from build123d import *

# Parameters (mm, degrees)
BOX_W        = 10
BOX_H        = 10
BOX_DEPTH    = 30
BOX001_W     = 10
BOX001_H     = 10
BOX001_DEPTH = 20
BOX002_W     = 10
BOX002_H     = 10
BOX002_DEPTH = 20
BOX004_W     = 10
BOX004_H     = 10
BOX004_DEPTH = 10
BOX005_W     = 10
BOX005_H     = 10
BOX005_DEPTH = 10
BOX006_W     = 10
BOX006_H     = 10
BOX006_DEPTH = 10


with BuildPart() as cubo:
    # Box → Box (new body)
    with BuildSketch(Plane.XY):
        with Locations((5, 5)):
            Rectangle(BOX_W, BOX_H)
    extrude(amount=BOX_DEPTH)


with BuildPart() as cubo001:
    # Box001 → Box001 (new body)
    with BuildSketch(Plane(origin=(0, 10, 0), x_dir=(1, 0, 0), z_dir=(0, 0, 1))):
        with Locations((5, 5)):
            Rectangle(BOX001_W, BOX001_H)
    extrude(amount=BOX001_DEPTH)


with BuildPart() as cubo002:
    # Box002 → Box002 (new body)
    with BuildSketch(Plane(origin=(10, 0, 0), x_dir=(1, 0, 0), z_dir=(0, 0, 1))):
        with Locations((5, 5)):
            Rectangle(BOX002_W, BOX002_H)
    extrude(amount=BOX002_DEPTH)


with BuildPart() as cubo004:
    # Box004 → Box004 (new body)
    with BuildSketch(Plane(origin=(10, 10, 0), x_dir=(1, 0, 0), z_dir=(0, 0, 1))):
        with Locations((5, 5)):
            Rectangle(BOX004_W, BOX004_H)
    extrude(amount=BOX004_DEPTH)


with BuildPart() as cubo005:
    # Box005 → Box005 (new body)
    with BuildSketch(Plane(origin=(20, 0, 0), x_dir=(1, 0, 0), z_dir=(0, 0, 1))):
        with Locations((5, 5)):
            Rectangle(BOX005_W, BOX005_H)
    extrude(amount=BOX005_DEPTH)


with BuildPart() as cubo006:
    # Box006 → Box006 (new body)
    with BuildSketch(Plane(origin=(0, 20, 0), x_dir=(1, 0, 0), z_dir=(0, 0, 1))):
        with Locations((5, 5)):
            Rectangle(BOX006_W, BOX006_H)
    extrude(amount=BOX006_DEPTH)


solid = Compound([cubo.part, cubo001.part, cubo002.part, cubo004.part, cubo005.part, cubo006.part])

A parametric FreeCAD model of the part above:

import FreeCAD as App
import Part
import Sketcher
from FreeCAD import Vector

doc = App.newDocument("Part")
body = doc.addObject("PartDesign::Body", "Body")

sketch1 = body.newObject("Sketcher::SketchObject", "Sketch")
sketch1.AttachmentSupport = (doc.getObject("XY_Plane"), [""])
sketch1.MapMode = "FlatFace"
sketch1.addGeometry([
    Part.LineSegment(Vector(0, 10, 0), Vector(0, 0, 0)),
    Part.LineSegment(Vector(0, 0, 0), Vector(10, 0, 0)),
    Part.LineSegment(Vector(10, 0, 0), Vector(10, 10, 0)),
    Part.LineSegment(Vector(10, 10, 0), Vector(0, 10, 0)),
], False)
sketch1.addConstraint([
    Sketcher.Constraint("Coincident", 0, 2, 1, 1),
    Sketcher.Constraint("Coincident", 1, 2, 2, 1),
    Sketcher.Constraint("Coincident", 2, 2, 3, 1),
    Sketcher.Constraint("Coincident", 3, 2, 0, 1),
    Sketcher.Constraint("Vertical", 0),
    Sketcher.Constraint("Horizontal", 1),
    Sketcher.Constraint("Vertical", 2),
    Sketcher.Constraint("Horizontal", 3),
    Sketcher.Constraint("Coincident", 0, 2, -1, 1),
    Sketcher.Constraint("Equal", 3, 0),
    Sketcher.Constraint("DistanceX", 1, 1, 1, 2, 10.0),
])
pad1 = body.newObject("PartDesign::Pad", "Pad")
pad1.Profile = sketch1
pad1.Length = 30
body2 = doc.addObject("PartDesign::Body", "Body001")

sketch2 = body2.newObject("Sketcher::SketchObject", "Sketch001")
sketch2.AttachmentSupport = (doc.getObject("XY_Plane001"), [""])
sketch2.MapMode = "FlatFace"
sketch2.addGeometry([
    Part.LineSegment(Vector(0, 20, 0), Vector(0, 10, 0)),
    Part.LineSegment(Vector(0, 10, 0), Vector(10, 10, 0)),
    Part.LineSegment(Vector(10, 10, 0), Vector(10, 20, 0)),
    Part.LineSegment(Vector(10, 20, 0), Vector(0, 20, 0)),
], False)
sketch2.addConstraint([
    Sketcher.Constraint("Coincident", 0, 2, 1, 1),
    Sketcher.Constraint("Coincident", 1, 2, 2, 1),
    Sketcher.Constraint("Coincident", 2, 2, 3, 1),
    Sketcher.Constraint("Coincident", 3, 2, 0, 1),
    Sketcher.Constraint("Vertical", 0),
    Sketcher.Constraint("Horizontal", 1),
    Sketcher.Constraint("Vertical", 2),
    Sketcher.Constraint("Horizontal", 3),
    Sketcher.Constraint("PointOnObject", 0, 2, -2),
    Sketcher.Constraint("Equal", 3, 0),
    Sketcher.Constraint("DistanceX", 1, 1, 1, 2, 10.0),
    Sketcher.Constraint("DistanceY", -1, 1, 0, 2, 10.0),
])
pad2 = body2.newObject("PartDesign::Pad", "Pad001")
pad2.Profile = sketch2
pad2.Length = 20
body3 = doc.addObject("PartDesign::Body", "Body002")

sketch3 = body3.newObject("Sketcher::SketchObject", "Sketch002")
sketch3.AttachmentSupport = (doc.getObject("XY_Plane002"), [""])
sketch3.MapMode = "FlatFace"
sketch3.addGeometry([
    Part.LineSegment(Vector(10, 10, 0), Vector(10, 0, 0)),
    Part.LineSegment(Vector(10, 0, 0), Vector(20, 0, 0)),
    Part.LineSegment(Vector(20, 0, 0), Vector(20, 10, 0)),
    Part.LineSegment(Vector(20, 10, 0), Vector(10, 10, 0)),
], False)
sketch3.addConstraint([
    Sketcher.Constraint("Coincident", 0, 2, 1, 1),
    Sketcher.Constraint("Coincident", 1, 2, 2, 1),
    Sketcher.Constraint("Coincident", 2, 2, 3, 1),
    Sketcher.Constraint("Coincident", 3, 2, 0, 1),
    Sketcher.Constraint("Vertical", 0),
    Sketcher.Constraint("Horizontal", 1),
    Sketcher.Constraint("Vertical", 2),
    Sketcher.Constraint("Horizontal", 3),
    Sketcher.Constraint("PointOnObject", 0, 2, -1),
    Sketcher.Constraint("Equal", 3, 0),
    Sketcher.Constraint("DistanceX", 1, 1, 1, 2, 10.0),
    Sketcher.Constraint("DistanceX", -1, 1, 0, 2, 10.0),
])
pad3 = body3.newObject("PartDesign::Pad", "Pad002")
pad3.Profile = sketch3
pad3.Length = 20
body4 = doc.addObject("PartDesign::Body", "Body003")

sketch4 = body4.newObject("Sketcher::SketchObject", "Sketch003")
sketch4.AttachmentSupport = (doc.getObject("XY_Plane003"), [""])
sketch4.MapMode = "FlatFace"
sketch4.addGeometry([
    Part.LineSegment(Vector(10, 20, 0), Vector(10, 10, 0)),
    Part.LineSegment(Vector(10, 10, 0), Vector(20, 10, 0)),
    Part.LineSegment(Vector(20, 10, 0), Vector(20, 20, 0)),
    Part.LineSegment(Vector(20, 20, 0), Vector(10, 20, 0)),
], False)
sketch4.addConstraint([
    Sketcher.Constraint("Coincident", 0, 2, 1, 1),
    Sketcher.Constraint("Coincident", 1, 2, 2, 1),
    Sketcher.Constraint("Coincident", 2, 2, 3, 1),
    Sketcher.Constraint("Coincident", 3, 2, 0, 1),
    Sketcher.Constraint("Vertical", 0),
    Sketcher.Constraint("Horizontal", 1),
    Sketcher.Constraint("Vertical", 2),
    Sketcher.Constraint("Horizontal", 3),
    Sketcher.Constraint("Equal", 3, 0),
    Sketcher.Constraint("DistanceX", 1, 1, 1, 2, 10.0),
    Sketcher.Constraint("DistanceX", -1, 1, 0, 2, 10.0),
    Sketcher.Constraint("DistanceY", -1, 1, 0, 2, 10.0),
])
pad4 = body4.newObject("PartDesign::Pad", "Pad003")
pad4.Profile = sketch4
pad4.Length = 10
body5 = doc.addObject("PartDesign::Body", "Body004")

sketch5 = body5.newObject("Sketcher::SketchObject", "Sketch004")
sketch5.AttachmentSupport = (doc.getObject("XY_Plane004"), [""])
sketch5.MapMode = "FlatFace"
sketch5.addGeometry([
    Part.LineSegment(Vector(20, 10, 0), Vector(20, 0, 0)),
    Part.LineSegment(Vector(20, 0, 0), Vector(30, 0, 0)),
    Part.LineSegment(Vector(30, 0, 0), Vector(30, 10, 0)),
    Part.LineSegment(Vector(30, 10, 0), Vector(20, 10, 0)),
], False)
sketch5.addConstraint([
    Sketcher.Constraint("Coincident", 0, 2, 1, 1),
    Sketcher.Constraint("Coincident", 1, 2, 2, 1),
    Sketcher.Constraint("Coincident", 2, 2, 3, 1),
    Sketcher.Constraint("Coincident", 3, 2, 0, 1),
    Sketcher.Constraint("Vertical", 0),
    Sketcher.Constraint("Horizontal", 1),
    Sketcher.Constraint("Vertical", 2),
    Sketcher.Constraint("Horizontal", 3),
    Sketcher.Constraint("PointOnObject", 0, 2, -1),
    Sketcher.Constraint("Equal", 3, 0),
    Sketcher.Constraint("DistanceX", 1, 1, 1, 2, 10.0),
    Sketcher.Constraint("DistanceX", -1, 1, 0, 2, 20.0),
])
pad5 = body5.newObject("PartDesign::Pad", "Pad004")
pad5.Profile = sketch5
pad5.Length = 10
body6 = doc.addObject("PartDesign::Body", "Body005")

sketch6 = body6.newObject("Sketcher::SketchObject", "Sketch005")
sketch6.AttachmentSupport = (doc.getObject("XY_Plane005"), [""])
sketch6.MapMode = "FlatFace"
sketch6.addGeometry([
    Part.LineSegment(Vector(0, 30, 0), Vector(0, 20, 0)),
    Part.LineSegment(Vector(0, 20, 0), Vector(10, 20, 0)),
    Part.LineSegment(Vector(10, 20, 0), Vector(10, 30, 0)),
    Part.LineSegment(Vector(10, 30, 0), Vector(0, 30, 0)),
], False)
sketch6.addConstraint([
    Sketcher.Constraint("Coincident", 0, 2, 1, 1),
    Sketcher.Constraint("Coincident", 1, 2, 2, 1),
    Sketcher.Constraint("Coincident", 2, 2, 3, 1),
    Sketcher.Constraint("Coincident", 3, 2, 0, 1),
    Sketcher.Constraint("Vertical", 0),
    Sketcher.Constraint("Horizontal", 1),
    Sketcher.Constraint("Vertical", 2),
    Sketcher.Constraint("Horizontal", 3),
    Sketcher.Constraint("PointOnObject", 0, 2, -2),
    Sketcher.Constraint("Equal", 3, 0),
    Sketcher.Constraint("DistanceX", 1, 1, 1, 2, 10.0),
    Sketcher.Constraint("DistanceY", -1, 1, 0, 2, 20.0),
])
pad6 = body6.newObject("PartDesign::Pad", "Pad005")
pad6.Profile = sketch6
pad6.Length = 10

doc.recompute()
